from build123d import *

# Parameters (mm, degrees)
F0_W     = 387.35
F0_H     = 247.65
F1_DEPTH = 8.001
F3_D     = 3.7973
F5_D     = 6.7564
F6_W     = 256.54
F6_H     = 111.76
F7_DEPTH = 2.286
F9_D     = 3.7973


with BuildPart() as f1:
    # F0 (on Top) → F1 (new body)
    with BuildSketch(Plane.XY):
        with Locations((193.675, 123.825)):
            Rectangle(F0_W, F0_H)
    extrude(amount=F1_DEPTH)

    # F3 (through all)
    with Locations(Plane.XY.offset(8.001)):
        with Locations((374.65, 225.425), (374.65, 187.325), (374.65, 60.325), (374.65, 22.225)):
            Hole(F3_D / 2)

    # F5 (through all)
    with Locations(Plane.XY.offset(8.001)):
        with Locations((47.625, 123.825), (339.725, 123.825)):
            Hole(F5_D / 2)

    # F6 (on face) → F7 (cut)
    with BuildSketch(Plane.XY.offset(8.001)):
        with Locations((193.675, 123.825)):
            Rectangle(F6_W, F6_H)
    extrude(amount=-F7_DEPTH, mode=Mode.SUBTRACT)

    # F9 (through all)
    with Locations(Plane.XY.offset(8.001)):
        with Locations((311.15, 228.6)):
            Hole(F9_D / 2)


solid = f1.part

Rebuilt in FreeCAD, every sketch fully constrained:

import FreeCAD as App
import Part
import Sketcher
Q = App.Units.Quantity

doc = App.newDocument("Part")
body = doc.addObject("PartDesign::Body", "Body")

# Sketch on XY plane
sketch1 = body.newObject("Sketcher::SketchObject", "Sketch")
sketch1.AttachmentSupport = (doc.getObject("XY_Plane"), [""])
sketch1.MapMode = "FlatFace"
sketch1.addGeometry(Part.LineSegment(App.Vector(0, 248, 0), App.Vector(0, 0, 0)), False)
sketch1.addGeometry(Part.LineSegment(App.Vector(0, 0, 0), App.Vector(387, 0, 0)), False)
sketch1.addGeometry(Part.LineSegment(App.Vector(387, 0, 0), App.Vector(387, 248, 0)), False)
sketch1.addGeometry(Part.LineSegment(App.Vector(387, 248, 0), App.Vector(0, 248, 0)), False)
sketch1.addConstraint(Sketcher.Constraint("Coincident", 0, 2, 1, 1))
sketch1.addConstraint(Sketcher.Constraint("Coincident", 1, 2, 2, 1))
sketch1.addConstraint(Sketcher.Constraint("Coincident", 2, 2, 3, 1))
sketch1.addConstraint(Sketcher.Constraint("Coincident", 3, 2, 0, 1))
sketch1.addConstraint(Sketcher.Constraint("Vertical", 0))
sketch1.addConstraint(Sketcher.Constraint("Horizontal", 1))
sketch1.addConstraint(Sketcher.Constraint("Vertical", 2))
sketch1.addConstraint(Sketcher.Constraint("Horizontal", 3))
sketch1.addConstraint(Sketcher.Constraint("Coincident", 0, 2, -1, 1))
sketch1.addConstraint(Sketcher.Constraint("DistanceX", 1, 1, 1, 2, Q("15.25 in")))
sketch1.addConstraint(Sketcher.Constraint("DistanceY", 0, 2, 0, 1, Q("9.75 in")))
pad1 = body.newObject("PartDesign::Pad", "Pad")
pad1.Profile = sketch1
pad1.Length = Q("0.315 in")

# Sketch on XY plane
sketch2 = body.newObject("Sketcher::SketchObject", "Sketch001")
sketch2.AttachmentSupport = (doc.getObject("XY_Plane"), [""])
sketch2.MapMode = "FlatFace"
sketch2.AttachmentOffset = App.Placement(App.Vector(0, 0, 0.315 * 25.4), App.Rotation())
sketch2.addGeometry(Part.Circle(App.Vector(374.6, 225.4, 0), App.Vector(0, 0, 1), 1.9), False)
sketch2.addGeometry(Part.Circle(App.Vector(374.6, 187.3, 0), App.Vector(0, 0, 1), 1.9), False)
sketch2.addGeometry(Part.Circle(App.Vector(374.6, 60.3, 0), App.Vector(0, 0, 1), 1.9), False)
sketch2.addGeometry(Part.Circle(App.Vector(374.6, 22.2, 0), App.Vector(0, 0, 1), 1.9), False)
sketch2.addConstraint(Sketcher.Constraint("Equal", 0, 1))
sketch2.addConstraint(Sketcher.Constraint("Equal", 1, 2))
sketch2.addConstraint(Sketcher.Constraint("Equal", 2, 3))
sketch2.addConstraint(Sketcher.Constraint("Vertical", 0, 3, 1, 3))
sketch2.addConstraint(Sketcher.Constraint("Vertical", 1, 3, 2, 3))
sketch2.addConstraint(Sketcher.Constraint("Vertical", 2, 3, 3, 3))
sketch2.addConstraint(Sketcher.Constraint("DistanceY", 2, 3, 1, 3, Q("5 in")))
sketch2.addConstraint(Sketcher.Constraint("DistanceY", 3, 3, 0, 3, Q("8 in")))
sketch2.addConstraint(Sketcher.Constraint("Diameter", 0, Q("0.1495 in")))
sketch2.addConstraint(Sketcher.Constraint("DistanceY", 1, 3, 0, 3, Q("1.5 in")))
sketch2.addConstraint(Sketcher.Constraint("DistanceX", -1, 1, 0, 3, Q("14.75 in")))
sketch2.addConstraint(Sketcher.Constraint("DistanceY", -1, 1, 0, 3, Q("8.875 in")))
doc.recompute()
hole = body.newObject("PartDesign::Hole", "Hole")
hole.Profile = sketch2
hole.ThreadType = "None"
hole.Diameter = Q("0.1495 in")
hole.DepthType = "ThroughAll"

# Sketch on XY plane
sketch3 = body.newObject("Sketcher::SketchObject", "Sketch002")
sketch3.AttachmentSupport = (doc.getObject("XY_Plane"), [""])
sketch3.MapMode = "FlatFace"
sketch3.AttachmentOffset = App.Placement(App.Vector(0, 0, 0.315 * 25.4), App.Rotation())
sketch3.addGeometry(Part.Circle(App.Vector(47.6, 123.8, 0), App.Vector(0, 0, 1), 3.4), False)
sketch3.addGeometry(Part.Circle(App.Vector(339.7, 123.8, 0), App.Vector(0, 0, 1), 3.4), False)
sketch3.addConstraint(Sketcher.Constraint("Equal", 0, 1))
sketch3.addConstraint(Sketcher.Constraint("Horizontal", 0, 3, 1, 3))
sketch3.addConstraint(Sketcher.Constraint("Diameter", 0, Q("0.266 in")))
sketch3.addConstraint(Sketcher.Constraint("DistanceX", 0, 3, 1, 3, Q("11.5 in")))
sketch3.addConstraint(Sketcher.Constraint("DistanceX", -1, 1, 0, 3, Q("1.875 in")))
sketch3.addConstraint(Sketcher.Constraint("DistanceY", -1, 1, 0, 3, Q("4.875 in")))
doc.recompute()
hole2 = body.newObject("PartDesign::Hole", "Hole001")
hole2.Profile = sketch3
hole2.ThreadType = "None"
hole2.Diameter = Q("0.266 in")
hole2.DepthType = "ThroughAll"

# Sketch on XY plane
sketch4 = body.newObject("Sketcher::SketchObject", "Sketch003")
sketch4.AttachmentSupport = (doc.getObject("XY_Plane"), [""])
sketch4.MapMode = "FlatFace"
sketch4.AttachmentOffset = App.Placement(App.Vector(0, 0, 0.315 * 25.4), App.Rotation())
sketch4.addGeometry(Part.LineSegment(App.Vector(65, 180, 0), App.Vector(65, 68, 0)), False)
sketch4.addGeometry(Part.LineSegment(App.Vector(65, 68, 0), App.Vector(322, 68, 0)), False)
sketch4.addGeometry(Part.LineSegment(App.Vector(322, 68, 0), App.Vector(322, 180, 0)), False)
sketch4.addGeometry(Part.LineSegment(App.Vector(322, 180, 0), App.Vector(65, 180, 0)), False)
sketch4.addConstraint(Sketcher.Constraint("Coincident", 0, 2, 1, 1))
sketch4.addConstraint(Sketcher.Constraint("Coincident", 1, 2, 2, 1))
sketch4.addConstraint(Sketcher.Constraint("Coincident", 2, 2, 3, 1))
sketch4.addConstraint(Sketcher.Constraint("Coincident", 3, 2, 0, 1))
sketch4.addConstraint(Sketcher.Constraint("Vertical", 0))
sketch4.addConstraint(Sketcher.Constraint("Horizontal", 1))
sketch4.addConstraint(Sketcher.Constraint("Vertical", 2))
sketch4.addConstraint(Sketcher.Constraint("Horizontal", 3))
sketch4.addConstraint(Sketcher.Constraint("DistanceX", 1, 1, 1, 2, Q("10.1 in")))
sketch4.addConstraint(Sketcher.Constraint("DistanceY", 0, 2, 0, 1, Q("4.4 in")))
sketch4.addConstraint(Sketcher.Constraint("DistanceX", -1, 1, 0, 2, Q("2.575 in")))
sketch4.addConstraint(Sketcher.Constraint("DistanceY", -1, 1, 0, 2, Q("2.675 in")))
pocket1 = body.newObject("PartDesign::Pocket", "Pocket")
pocket1.Profile = sketch4
pocket1.Length = Q("0.09 in")

# Sketch on XY plane
sketch5 = body.newObject("Sketcher::SketchObject", "Sketch004")
sketch5.AttachmentSupport = (doc.getObject("XY_Plane"), [""])
sketch5.MapMode = "FlatFace"
sketch5.AttachmentOffset = App.Placement(App.Vector(0, 0, 0.315 * 25.4), App.Rotation())
sketch5.addGeometry(Part.Circle(App.Vector(311.1, 228.6, 0), App.Vector(0, 0, 1), 1.9), False)
sketch5.addConstraint(Sketcher.Constraint("DistanceY", -1, 1, 0, 3, Q("9 in")))
sketch5.addConstraint(Sketcher.Constraint("Diameter", 0, Q("0.1495 in")))
sketch5.addConstraint(Sketcher.Constraint("DistanceX", -1, 1, 0, 3, Q("12.25 in")))
doc.recompute()
hole3 = body.newObject("PartDesign::Hole", "Hole002")
hole3.Profile = sketch5
hole3.ThreadType = "None"
hole3.Diameter = Q("0.1495 in")
hole3.DepthType = "ThroughAll"

doc.recompute()
